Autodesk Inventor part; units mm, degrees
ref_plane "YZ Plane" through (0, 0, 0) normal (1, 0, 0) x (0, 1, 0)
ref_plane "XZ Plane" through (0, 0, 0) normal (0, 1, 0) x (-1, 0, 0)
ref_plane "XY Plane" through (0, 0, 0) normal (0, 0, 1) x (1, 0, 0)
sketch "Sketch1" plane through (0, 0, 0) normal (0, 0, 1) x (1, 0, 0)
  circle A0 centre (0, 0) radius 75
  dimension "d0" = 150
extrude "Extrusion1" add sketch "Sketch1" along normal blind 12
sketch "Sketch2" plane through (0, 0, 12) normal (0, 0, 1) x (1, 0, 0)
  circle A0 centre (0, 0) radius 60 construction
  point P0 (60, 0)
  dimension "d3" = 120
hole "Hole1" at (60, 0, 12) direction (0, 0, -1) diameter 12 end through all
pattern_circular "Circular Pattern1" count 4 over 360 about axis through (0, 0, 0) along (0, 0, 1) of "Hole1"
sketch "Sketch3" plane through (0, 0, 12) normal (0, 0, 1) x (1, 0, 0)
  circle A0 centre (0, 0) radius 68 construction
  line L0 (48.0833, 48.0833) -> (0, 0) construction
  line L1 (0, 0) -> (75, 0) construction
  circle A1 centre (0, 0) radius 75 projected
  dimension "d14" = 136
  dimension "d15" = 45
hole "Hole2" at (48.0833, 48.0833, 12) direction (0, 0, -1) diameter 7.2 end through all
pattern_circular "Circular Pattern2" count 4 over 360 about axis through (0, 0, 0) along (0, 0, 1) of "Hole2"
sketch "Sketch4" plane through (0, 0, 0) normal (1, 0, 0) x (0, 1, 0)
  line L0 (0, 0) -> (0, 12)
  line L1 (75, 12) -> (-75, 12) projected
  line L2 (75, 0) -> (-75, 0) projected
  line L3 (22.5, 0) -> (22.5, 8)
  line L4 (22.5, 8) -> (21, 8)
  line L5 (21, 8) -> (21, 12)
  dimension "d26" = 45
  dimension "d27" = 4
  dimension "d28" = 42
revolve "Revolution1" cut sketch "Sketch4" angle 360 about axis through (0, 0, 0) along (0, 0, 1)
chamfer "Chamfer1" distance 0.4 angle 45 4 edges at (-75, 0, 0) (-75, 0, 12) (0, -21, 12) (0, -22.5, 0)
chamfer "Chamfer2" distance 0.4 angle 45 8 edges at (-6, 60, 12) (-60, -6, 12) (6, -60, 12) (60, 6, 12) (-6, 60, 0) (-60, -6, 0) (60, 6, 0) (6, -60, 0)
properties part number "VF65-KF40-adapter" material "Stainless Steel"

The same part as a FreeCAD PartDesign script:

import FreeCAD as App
import Part
import Sketcher


def edges_at(feature, points):
    """Names of the edges that pass closest to the given points."""
    edges = feature.Shape.Edges
    near = lambda p: min(range(len(edges)), key=lambda i: edges[i].distToShape(Part.Vertex(*p))[0])
    return sorted({f"Edge{near(p) + 1}" for p in points})

doc = App.newDocument("Part")
body = doc.addObject("PartDesign::Body", "Body")

sketch1 = body.newObject("Sketcher::SketchObject", "Sketch")
sketch1.AttachmentSupport = (doc.getObject("XY_Plane"), [""])
sketch1.MapMode = "FlatFace"
sketch1.addGeometry(Part.Circle(App.Vector(0, 0, 0), App.Vector(0, 0, 1), 75), False)
sketch1.addConstraint(Sketcher.Constraint("Coincident", 0, 3, -1, 1))
sketch1.addConstraint(Sketcher.Constraint("Diameter", 0, 150.0))
pad1 = body.newObject("PartDesign::Pad", "Pad")
pad1.Profile = sketch1
pad1.Length = 12

sketch2 = body.newObject("Sketcher::SketchObject", "Sketch001")
sketch2.AttachmentSupport = (doc.getObject("XY_Plane"), [""])
sketch2.MapMode = "FlatFace"
sketch2.AttachmentOffset = App.Placement(App.Vector(0, 0, 12), App.Rotation())
sketch2.addGeometry(Part.Circle(App.Vector(60, 0, 0), App.Vector(0, 0, 1), 6), False)
sketch2.addConstraint(Sketcher.Constraint("PointOnObject", 0, 3, -1))
sketch2.addConstraint(Sketcher.Constraint("Diameter", 0, 12.0))
sketch2.addConstraint(Sketcher.Constraint("DistanceX", -1, 1, 0, 3, 60.0))
doc.recompute()
hole = body.newObject("PartDesign::Hole", "Hole")
hole.Profile = sketch2
hole.ThreadType = "None"
hole.Diameter = 12
hole.DepthType = "ThroughAll"
doc.recompute()

polarpattern = body.newObject("PartDesign::PolarPattern", "PolarPattern")
polarpattern.Originals = [hole]
polarpattern.Axis = (doc.getObject("Z_Axis"), [""])
polarpattern.Angle = 360
polarpattern.Occurrences = 4
body.Tip = polarpattern

sketch3 = body.newObject("Sketcher::SketchObject", "Sketch002")
sketch3.AttachmentSupport = (doc.getObject("XY_Plane"), [""])
sketch3.MapMode = "FlatFace"
sketch3.AttachmentOffset = App.Placement(App.Vector(0, 0, 12), App.Rotation())
sketch3.addGeometry(Part.Circle(App.Vector(48.1, 48.1, 0), App.Vector(0, 0, 1), 3.6), False)
sketch3.addConstraint(Sketcher.Constraint("Diameter", 0, 7.2))
sketch3.addConstraint(Sketcher.Constraint("DistanceX", -1, 1, 0, 3, 48.0833))
sketch3.addConstraint(Sketcher.Constraint("DistanceY", -1, 1, 0, 3, 48.0833))
doc.recompute()
hole2 = body.newObject("PartDesign::Hole", "Hole001")
hole2.Profile = sketch3
hole2.ThreadType = "None"
hole2.Diameter = 7.2
hole2.DepthType = "ThroughAll"
doc.recompute()

polarpattern2 = body.newObject("PartDesign::PolarPattern", "PolarPattern001")
polarpattern2.Originals = [hole2]
polarpattern2.Axis = (doc.getObject("Z_Axis"), [""])
polarpattern2.Angle = 360
polarpattern2.Occurrences = 4
body.Tip = polarpattern2

sketch4 = body.newObject("Sketcher::SketchObject", "Sketch003")
sketch4.AttachmentSupport = (doc.getObject("YZ_Plane"), [""])
sketch4.MapMode = "FlatFace"
sketch4.addGeometry(Part.LineSegment(App.Vector(0, 12, 0), App.Vector(0, 0, 0)), False)
sketch4.addGeometry(Part.LineSegment(App.Vector(0, 0, 0), App.Vector(22.5, 0, 0)), False)
sketch4.addGeometry(Part.LineSegment(App.Vector(22.5, 0, 0), App.Vector(22.5, 8, 0)), False)
sketch4.addGeometry(Part.LineSegment(App.Vector(22.5, 8, 0), App.Vector(21, 8, 0)), False)
sketch4.addGeometry(Part.LineSegment(App.Vector(21, 8, 0), App.Vector(21, 12, 0)), False)
sketch4.addGeometry(Part.LineSegment(App.Vector(21, 12, 0), App.Vector(0, 12, 0)), False)
sketch4.addConstraint(Sketcher.Constraint("Coincident", 0, 2, 1, 1))
sketch4.addConstraint(Sketcher.Constraint("Coincident", 1, 2, 2, 1))
sketch4.addConstraint(Sketcher.Constraint("Coincident", 2, 2, 3, 1))
sketch4.addConstraint(Sketcher.Constraint("Coincident", 3, 2, 4, 1))
sketch4.addConstraint(Sketcher.Constraint("Coincident", 4, 2, 5, 1))
sketch4.addConstraint(Sketcher.Constraint("Coincident", 5, 2, 0, 1))
sketch4.addConstraint(Sketcher.Constraint("Vertical", 0))
sketch4.addConstraint(Sketcher.Constraint("Horizontal", 1))
sketch4.addConstraint(Sketcher.Constraint("Vertical", 2))
sketch4.addConstraint(Sketcher.Constraint("Horizontal", 3))
sketch4.addConstraint(Sketcher.Constraint("Vertical", 4))
sketch4.addConstraint(Sketcher.Constraint("Horizontal", 5))
sketch4.addConstraint(Sketcher.Constraint("Coincident", 0, 2, -1, 1))
sketch4.addConstraint(Sketcher.Constraint("DistanceY", 4, 1, 4, 2, 4.0))
sketch4.addConstraint(Sketcher.Constraint("DistanceX", 5, 2, 5, 1, 21.0))
sketch4.addConstraint(Sketcher.Constraint("DistanceY", 0, 2, 0, 1, 12.0))
sketch4.addConstraint(Sketcher.Constraint("DistanceX", 1, 1, 1, 2, 22.5))
groove = body.newObject("PartDesign::Groove", "Groove")
groove.Profile = sketch4
groove.ReferenceAxis = (sketch4, ["V_Axis"])
groove.Angle = 360
doc.recompute()

chamfer = body.newObject("PartDesign::Chamfer", "Chamfer")
chamfer.Base = (groove, edges_at(groove, [
    (-75, 0, 0),
    (-75, 0, 12),
    (0, -21, 12),
    (0, -22.5, 0),
]))
chamfer.Size = 0.4
doc.recompute()

chamfer2 = body.newObject("PartDesign::Chamfer", "Chamfer001")
chamfer2.Base = (chamfer, edges_at(chamfer, [
    (-6, 60, 12),
    (-60, -6, 12),
    (6, -60, 12),
    (60, 6, 12),
    (-6, 60, 0),
    (-60, -6, 0),
    (60, 6, 0),
    (6, -60, 0),
]))
chamfer2.Size = 0.4

doc.recompute()
